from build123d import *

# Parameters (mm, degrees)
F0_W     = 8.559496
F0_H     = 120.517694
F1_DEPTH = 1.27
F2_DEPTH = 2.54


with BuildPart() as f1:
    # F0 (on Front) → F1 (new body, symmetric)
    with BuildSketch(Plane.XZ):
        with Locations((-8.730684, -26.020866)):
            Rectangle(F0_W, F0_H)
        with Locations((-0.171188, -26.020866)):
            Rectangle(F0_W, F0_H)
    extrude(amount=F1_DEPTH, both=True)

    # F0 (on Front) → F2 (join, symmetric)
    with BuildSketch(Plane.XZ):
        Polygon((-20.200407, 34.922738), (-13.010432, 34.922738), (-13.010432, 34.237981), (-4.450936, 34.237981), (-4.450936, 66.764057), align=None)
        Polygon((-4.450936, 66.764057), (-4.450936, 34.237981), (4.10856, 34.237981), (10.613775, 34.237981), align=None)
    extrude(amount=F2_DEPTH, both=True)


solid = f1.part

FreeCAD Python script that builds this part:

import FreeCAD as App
import Part
import Sketcher

V = App.Vector
Q = App.Units.Quantity

doc = App.newDocument("Part")
body = doc.addObject("PartDesign::Body", "Body")

# Sketch on XZ plane
sketch1 = body.newObject("Sketcher::SketchObject", "Sketch")
sketch1.AttachmentSupport = (doc.getObject("XZ_Plane"), [""])
sketch1.MapMode = "FlatFace"
sketch1.addGeometry([
    Part.LineSegment(V(-13.010432, 34.237981, 0), V(-13.010432, -86.279713, 0)),
    Part.LineSegment(V(-13.010432, -86.279713, 0), V(4.10856, -86.279713, 0)),
    Part.LineSegment(V(4.10856, -86.279713, 0), V(4.10856, 34.237981, 0)),
    Part.LineSegment(V(4.10856, 34.237981, 0), V(-13.010432, 34.237981, 0)),
], False)
sketch1.addConstraint([
    Sketcher.Constraint("Coincident", 0, 2, 1, 1),
    Sketcher.Constraint("Coincident", 1, 2, 2, 1),
    Sketcher.Constraint("Coincident", 2, 2, 3, 1),
    Sketcher.Constraint("Coincident", 3, 2, 0, 1),
    Sketcher.Constraint("Vertical", 0),
    Sketcher.Constraint("Horizontal", 1),
    Sketcher.Constraint("Vertical", 2),
    Sketcher.Constraint("Horizontal", 3),
    Sketcher.Constraint("DistanceX", 1, 1, 1, 2, Q("17.118992 mm")),
    Sketcher.Constraint("DistanceY", 0, 2, 0, 1, Q("120.517694 mm")),
    Sketcher.Constraint("DistanceX", -1, 1, 1, 2, Q("4.10856 mm")),
    Sketcher.Constraint("DistanceY", -1, 1, 2, 2, Q("34.237981 mm")),
])
pad1 = body.newObject("PartDesign::Pad", "Pad")
pad1.Profile = sketch1
pad1.Length = Q("0.1 in")
pad1.Midplane = True

# Sketch on XZ plane
sketch2 = body.newObject("Sketcher::SketchObject", "Sketch001")
sketch2.AttachmentSupport = (doc.getObject("XZ_Plane"), [""])
sketch2.MapMode = "FlatFace"
sketch2.addGeometry([
    Part.LineSegment(V(-20.200407, 34.922738, 0), V(-13.010432, 34.922738, 0)),  # 0
    Part.LineSegment(V(-13.010432, 34.922738, 0), V(-13.010432, 34.237981, 0)),  # 1
    Part.LineSegment(V(-13.010432, 34.237981, 0), V(10.613775, 34.237981, 0)),  # 2
    Part.LineSegment(V(10.613775, 34.237981, 0), V(-4.450936, 66.764057, 0)),  # 3
    Part.LineSegment(V(-4.450936, 66.764057, 0), V(-20.200407, 34.922738, 0)),  # 4
], False)
sketch2.addConstraint([
    Sketcher.Constraint("Coincident", 0, 2, 1, 1),
    Sketcher.Constraint("Coincident", 1, 2, 2, 1),
    Sketcher.Constraint("Coincident", 2, 2, 3, 1),
    Sketcher.Constraint("Coincident", 3, 2, 4, 1),
    Sketcher.Constraint("Coincident", 4, 2, 0, 1),
    Sketcher.Constraint("Horizontal", 0),
    Sketcher.Constraint("Vertical", 1),
    Sketcher.Constraint("Horizontal", 2),
    Sketcher.Constraint("Distance", 3, Q("35.845378 mm")),
    Sketcher.Constraint("Distance", 4, Q("35.523449 mm")),
    Sketcher.Constraint("DistanceX", 0, 1, 0, 2, Q("7.189975 mm")),
    Sketcher.Constraint("DistanceX", 2, 1, 2, 2, Q("23.624207 mm")),
    Sketcher.Constraint("DistanceY", 1, 2, 1, 1, Q("0.684757 mm")),
    Sketcher.Constraint("DistanceY", -1, 1, 0, 2, Q("34.922738 mm")),
    Sketcher.Constraint("DistanceX", 0, 2, -1, 1, Q("13.010432 mm")),
])
pad2 = body.newObject("PartDesign::Pad", "Pad001")
pad2.Profile = sketch2
pad2.Length = Q("0.2 in")
pad2.Midplane = True

doc.recompute()
